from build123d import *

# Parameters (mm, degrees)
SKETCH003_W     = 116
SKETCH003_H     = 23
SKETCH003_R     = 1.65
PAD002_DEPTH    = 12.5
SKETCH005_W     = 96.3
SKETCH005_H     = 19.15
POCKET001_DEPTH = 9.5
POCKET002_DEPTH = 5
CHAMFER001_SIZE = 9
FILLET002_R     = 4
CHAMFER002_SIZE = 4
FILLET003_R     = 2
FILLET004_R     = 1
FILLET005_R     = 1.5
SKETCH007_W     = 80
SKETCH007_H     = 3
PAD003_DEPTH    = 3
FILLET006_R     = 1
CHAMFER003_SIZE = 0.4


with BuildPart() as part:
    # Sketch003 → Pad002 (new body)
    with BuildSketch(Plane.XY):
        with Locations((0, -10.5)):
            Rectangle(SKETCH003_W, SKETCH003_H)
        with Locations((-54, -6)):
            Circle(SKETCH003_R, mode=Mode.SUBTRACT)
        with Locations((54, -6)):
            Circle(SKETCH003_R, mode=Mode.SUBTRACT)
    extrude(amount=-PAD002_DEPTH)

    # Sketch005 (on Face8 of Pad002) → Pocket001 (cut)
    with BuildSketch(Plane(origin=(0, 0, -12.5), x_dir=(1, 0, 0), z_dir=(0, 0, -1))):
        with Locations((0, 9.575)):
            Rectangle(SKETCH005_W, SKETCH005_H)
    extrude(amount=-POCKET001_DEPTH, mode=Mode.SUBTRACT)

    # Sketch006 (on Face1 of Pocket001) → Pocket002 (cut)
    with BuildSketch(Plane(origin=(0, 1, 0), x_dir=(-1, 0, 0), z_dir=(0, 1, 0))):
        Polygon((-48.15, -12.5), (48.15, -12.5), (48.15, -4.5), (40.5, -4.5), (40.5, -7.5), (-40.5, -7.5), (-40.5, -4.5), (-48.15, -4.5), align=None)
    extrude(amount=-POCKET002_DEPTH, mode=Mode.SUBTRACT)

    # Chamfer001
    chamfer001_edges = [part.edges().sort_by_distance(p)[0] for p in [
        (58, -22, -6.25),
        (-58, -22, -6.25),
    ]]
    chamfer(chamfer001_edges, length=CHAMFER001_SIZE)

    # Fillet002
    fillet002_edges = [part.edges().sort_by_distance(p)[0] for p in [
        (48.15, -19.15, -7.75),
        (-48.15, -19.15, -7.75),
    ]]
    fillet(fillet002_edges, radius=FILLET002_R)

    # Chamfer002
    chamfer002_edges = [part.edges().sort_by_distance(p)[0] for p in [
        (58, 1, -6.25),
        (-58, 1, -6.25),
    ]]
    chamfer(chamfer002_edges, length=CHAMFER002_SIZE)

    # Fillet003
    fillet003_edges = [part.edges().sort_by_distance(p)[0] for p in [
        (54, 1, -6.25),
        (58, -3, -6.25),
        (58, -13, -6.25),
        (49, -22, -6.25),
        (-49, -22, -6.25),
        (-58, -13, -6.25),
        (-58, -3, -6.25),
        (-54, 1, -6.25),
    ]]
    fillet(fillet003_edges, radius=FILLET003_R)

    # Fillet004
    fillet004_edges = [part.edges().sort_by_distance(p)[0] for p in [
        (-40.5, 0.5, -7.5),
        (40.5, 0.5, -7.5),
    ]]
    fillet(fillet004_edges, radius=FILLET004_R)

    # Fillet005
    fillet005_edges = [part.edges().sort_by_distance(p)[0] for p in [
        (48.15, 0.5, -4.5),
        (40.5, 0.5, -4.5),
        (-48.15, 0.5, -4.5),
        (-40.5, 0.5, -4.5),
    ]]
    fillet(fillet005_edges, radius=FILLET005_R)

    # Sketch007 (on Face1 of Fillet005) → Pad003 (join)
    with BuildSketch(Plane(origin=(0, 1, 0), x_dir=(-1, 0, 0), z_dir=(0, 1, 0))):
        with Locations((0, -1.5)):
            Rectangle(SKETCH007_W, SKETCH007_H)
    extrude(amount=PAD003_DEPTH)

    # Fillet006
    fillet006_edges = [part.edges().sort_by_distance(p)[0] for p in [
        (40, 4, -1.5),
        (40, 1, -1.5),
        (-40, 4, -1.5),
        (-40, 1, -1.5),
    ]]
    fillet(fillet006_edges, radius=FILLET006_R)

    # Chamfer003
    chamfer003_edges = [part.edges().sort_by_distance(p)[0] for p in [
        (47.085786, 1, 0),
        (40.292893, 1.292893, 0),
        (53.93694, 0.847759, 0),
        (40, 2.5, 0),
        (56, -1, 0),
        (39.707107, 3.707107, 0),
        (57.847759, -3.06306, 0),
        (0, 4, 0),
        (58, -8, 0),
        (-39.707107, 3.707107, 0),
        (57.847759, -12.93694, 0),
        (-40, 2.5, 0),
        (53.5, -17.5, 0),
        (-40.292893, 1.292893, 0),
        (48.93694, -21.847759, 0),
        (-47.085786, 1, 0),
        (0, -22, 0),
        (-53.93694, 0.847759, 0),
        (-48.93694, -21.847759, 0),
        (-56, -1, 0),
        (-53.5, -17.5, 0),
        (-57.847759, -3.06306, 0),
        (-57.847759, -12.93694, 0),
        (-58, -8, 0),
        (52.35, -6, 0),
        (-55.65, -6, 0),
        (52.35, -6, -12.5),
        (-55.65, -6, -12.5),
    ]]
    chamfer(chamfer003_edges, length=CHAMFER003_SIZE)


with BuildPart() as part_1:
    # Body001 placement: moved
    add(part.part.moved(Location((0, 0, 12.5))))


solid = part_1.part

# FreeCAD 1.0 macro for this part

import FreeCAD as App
import Part
import Sketcher

V = App.Vector
Q = App.Units.Quantity


def edges_at(feature, points):
    """Names of the edges that pass closest to the given points."""
    edges = feature.Shape.Edges
    near = lambda p: min(range(len(edges)), key=lambda i: edges[i].distToShape(Part.Vertex(*p))[0])
    return sorted({f"Edge{near(p) + 1}" for p in points})


def add_polygon(sketch, points):
    """Adds a closed chain of lines whose ends are joined by coincident constraints."""
    first, n = sketch.GeometryCount, len(points)
    for a, b in zip(points, points[1:] + points[:1]):
        sketch.addGeometry(Part.LineSegment(App.Vector(*a, 0), App.Vector(*b, 0)), False)
    for i in range(n):
        sketch.addConstraint(Sketcher.Constraint("Coincident", first + i, 2, first + (i + 1) % n, 1))

doc = App.newDocument("Part")
body = doc.addObject("PartDesign::Body", "Body")

# Sketch on XY plane
sketch1 = body.newObject("Sketcher::SketchObject", "Sketch")
sketch1.AttachmentSupport = (doc.getObject("XY_Plane"), [""])
sketch1.MapMode = "FlatFace"
add_polygon(sketch1, [(-58, 1), (-58, -22), (58, -22), (58, 1)])  # lines 0-3
sketch1.addGeometry(Part.Circle(V(-54, -6, 0), V(0, 0, 1), 1.6), False)  # 4
sketch1.addGeometry(Part.Circle(V(54, -6, 0), V(0, 0, 1), 1.6), False)  # 5
sketch1.addConstraint([
    Sketcher.Constraint("Vertical", 0),
    Sketcher.Constraint("Horizontal", 1),
    Sketcher.Constraint("Vertical", 2),
    Sketcher.Constraint("Horizontal", 3),
    Sketcher.Constraint("Equal", 4, 5),
    Sketcher.Constraint("Symmetric", 4, 3, 5, 3, -2),
    Sketcher.Constraint("Diameter", 4, Q("3.3 mm")),
    Sketcher.Constraint("DistanceX", 1, 1, 1, 2, Q("116 mm")),
    Sketcher.Constraint("DistanceY", 0, 2, 0, 1, Q("23 mm")),
    Sketcher.Constraint("DistanceX", 4, 3, -1, 1, Q("54 mm")),
    Sketcher.Constraint("DistanceY", 4, 3, -1, 1, Q("6 mm")),
    Sketcher.Constraint("DistanceX", 0, 2, -1, 1, Q("58 mm")),
    Sketcher.Constraint("DistanceY", 0, 2, -1, 1, Q("22 mm")),
])
pad1 = body.newObject("PartDesign::Pad", "Pad")
pad1.Profile = sketch1
pad1.Length = 12.5
pad1.Reversed = True

# Sketch on XY plane
sketch2 = body.newObject("Sketcher::SketchObject", "Sketch001")
sketch2.AttachmentSupport = (doc.getObject("XY_Plane"), [""])
sketch2.MapMode = "FlatFace"
sketch2.AttachmentOffset = App.Placement(V(0, 0, -12.5), App.Rotation())
add_polygon(sketch2, [(-48, -19), (-48, 0), (48, 0), (48, -19)])  # lines 0-3
sketch2.addConstraint([
    Sketcher.Constraint("Vertical", 0),
    Sketcher.Constraint("Horizontal", 1),
    Sketcher.Constraint("Vertical", 2),
    Sketcher.Constraint("Horizontal", 3),
    Sketcher.Constraint("Symmetric", 0, 2, 1, 2, -1, 1),
    Sketcher.Constraint("DistanceX", 1, 1, 1, 2, Q("96.3 mm")),
    Sketcher.Constraint("DistanceY", 0, 1, 0, 2, Q("19.15 mm")),
])
pocket1 = body.newObject("PartDesign::Pocket", "Pocket")
pocket1.Profile = sketch2
pocket1.Length = 9.5
pocket1.Reversed = True

# Sketch on XZ plane
sketch3 = body.newObject("Sketcher::SketchObject", "Sketch002")
sketch3.AttachmentSupport = (doc.getObject("XZ_Plane"), [""])
sketch3.MapMode = "FlatFace"
sketch3.AttachmentOffset = App.Placement(V(0, 0, -1), App.Rotation())
add_polygon(sketch3, [(48.1, -12.5), (-48.1, -12.5), (-48.1, -4.5), (-40.5, -4.5), (-40.5, -7.5), (40.5, -7.5), (40.5, -4.5), (48.1, -4.5)])  # lines 0-7
sketch3.addConstraint([
    Sketcher.Constraint("Horizontal", 0),
    Sketcher.Constraint("Vertical", 1),
    Sketcher.Constraint("Horizontal", 2),
    Sketcher.Constraint("Vertical", 3),
    Sketcher.Constraint("Horizontal", 4),
    Sketcher.Constraint("Vertical", 5),
    Sketcher.Constraint("Horizontal", 6),
    Sketcher.Constraint("Vertical", 7),
    Sketcher.Constraint("Symmetric", 2, 2, 5, 2, -2),
    Sketcher.Constraint("Equal", 2, 6),
    Sketcher.Constraint("DistanceX", 4, 1, 4, 2, Q("81 mm")),
    Sketcher.Constraint("DistanceY", 1, 1, 1, 2, Q("8 mm")),
    Sketcher.Constraint("DistanceY", 3, 2, 3, 1, Q("3 mm")),
    Sketcher.Constraint("DistanceX", 0, 2, 0, 1, Q("96.3 mm")),
    Sketcher.Constraint("DistanceY", 0, 2, -1, 1, Q("12.5 mm")),
])
pocket2 = body.newObject("PartDesign::Pocket", "Pocket001")
pocket2.Profile = sketch3
pocket2.Length = 5
pocket2.Reversed = True
doc.recompute()

chamfer = body.newObject("PartDesign::Chamfer", "Chamfer")
chamfer.Base = (pocket2, edges_at(pocket2, [(58, -22, -6.25), (-58, -22, -6.25)]))
chamfer.Size = 9
doc.recompute()

fillet = body.newObject("PartDesign::Fillet", "Fillet")
fillet.Base = (chamfer, edges_at(chamfer, [(48.15, -19.15, -7.75), (-48.15, -19.15, -7.75)]))
fillet.Radius = 4
doc.recompute()

chamfer2 = body.newObject("PartDesign::Chamfer", "Chamfer001")
chamfer2.Base = (fillet, edges_at(fillet, [(58, 1, -6.25), (-58, 1, -6.25)]))
chamfer2.Size = 4
doc.recompute()

fillet2 = body.newObject("PartDesign::Fillet", "Fillet001")
fillet2.Base = (chamfer2, edges_at(chamfer2, [
    (54, 1, -6.25),
    (58, -3, -6.25),
    (58, -13, -6.25),
    (49, -22, -6.25),
    (-49, -22, -6.25),
    (-58, -13, -6.25),
    (-58, -3, -6.25),
    (-54, 1, -6.25),
]))
fillet2.Radius = 2
doc.recompute()

fillet3 = body.newObject("PartDesign::Fillet", "Fillet002")
fillet3.Base = (fillet2, edges_at(fillet2, [(-40.5, 0.5, -7.5), (40.5, 0.5, -7.5)]))
fillet3.Radius = 1
doc.recompute()

fillet4 = body.newObject("PartDesign::Fillet", "Fillet003")
fillet4.Base = (fillet3, edges_at(fillet3, [
    (48.15, 0.5, -4.5),
    (40.5, 0.5, -4.5),
    (-48.15, 0.5, -4.5),
    (-40.5, 0.5, -4.5),
]))
fillet4.Radius = 1.5

# Sketch on XZ plane
sketch4 = body.newObject("Sketcher::SketchObject", "Sketch003")
sketch4.AttachmentSupport = (doc.getObject("XZ_Plane"), [""])
sketch4.MapMode = "FlatFace"
sketch4.AttachmentOffset = App.Placement(V(0, 0, -1), App.Rotation())
add_polygon(sketch4, [(40, 0), (40, -3), (-40, -3), (-40, 0)])  # lines 0-3
sketch4.addConstraint([
    Sketcher.Constraint("Vertical", 0),
    Sketcher.Constraint("Horizontal", 1),
    Sketcher.Constraint("Vertical", 2),
    Sketcher.Constraint("Horizontal", 3),
    Sketcher.Constraint("Symmetric", 2, 2, 3, 2, -1, 1),
    Sketcher.Constraint("DistanceX", 1, 2, 1, 1, Q("80 mm")),
    Sketcher.Constraint("DistanceY", 0, 2, 0, 1, Q("3 mm")),
])
pad2 = body.newObject("PartDesign::Pad", "Pad001")
pad2.Profile = sketch4
pad2.Length = 3
pad2.Reversed = True
doc.recompute()

fillet5 = body.newObject("PartDesign::Fillet", "Fillet004")
fillet5.Base = (pad2, edges_at(pad2, [
    (40, 4, -1.5),
    (40, 1, -1.5),
    (-40, 4, -1.5),
    (-40, 1, -1.5),
]))
fillet5.Radius = 1
doc.recompute()

chamfer3 = body.newObject("PartDesign::Chamfer", "Chamfer002")
chamfer3.Base = (fillet5, edges_at(fillet5, [
    (47.086, 1, 0),
    (40.293, 1.293, 0),
    (53.937, 0.848, 0),
    (40, 2.5, 0),
    (56, -1, 0),
    (39.707, 3.707, 0),
    (57.848, -3.063, 0),
    (0, 4, 0),
    (58, -8, 0),
    (-39.707, 3.707, 0),
    (57.848, -12.937, 0),
    (-40, 2.5, 0),
    (53.5, -17.5, 0),
    (-40.293, 1.293, 0),
    (48.937, -21.848, 0),
    (-47.086, 1, 0),
    (0, -22, 0),
    (-53.937, 0.848, 0),
    (-48.937, -21.848, 0),
    (-56, -1, 0),
    (-53.5, -17.5, 0),
    (-57.848, -3.063, 0),
    (-57.848, -12.937, 0),
    (-58, -8, 0),
    (52.35, -6, 0),
    (-55.65, -6, 0),
    (52.35, -6, -12.5),
    (-55.65, -6, -12.5),
]))
chamfer3.Size = 0.4
body2 = doc.addObject("PartDesign::Body", "Body001")
doc.recompute()

body.Placement = App.Placement(V(0, 0, 12.5), App.Rotation(V(0, 0, 1), 0))
boolean = body2.newObject("PartDesign::Boolean", "Boolean")
boolean.Type = "Fuse"
boolean.addObjects([body])

doc.recompute()
